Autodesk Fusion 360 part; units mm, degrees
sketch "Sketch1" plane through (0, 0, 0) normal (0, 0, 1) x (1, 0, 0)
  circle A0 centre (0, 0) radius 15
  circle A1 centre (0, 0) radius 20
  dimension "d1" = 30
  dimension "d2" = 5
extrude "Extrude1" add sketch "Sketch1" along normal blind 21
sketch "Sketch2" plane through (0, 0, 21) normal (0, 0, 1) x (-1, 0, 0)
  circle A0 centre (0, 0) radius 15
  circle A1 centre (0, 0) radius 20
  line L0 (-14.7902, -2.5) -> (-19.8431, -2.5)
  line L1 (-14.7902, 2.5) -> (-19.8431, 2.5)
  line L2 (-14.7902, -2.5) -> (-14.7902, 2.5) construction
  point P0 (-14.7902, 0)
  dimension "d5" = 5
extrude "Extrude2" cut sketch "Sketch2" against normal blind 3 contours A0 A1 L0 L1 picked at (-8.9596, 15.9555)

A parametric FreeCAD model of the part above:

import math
import FreeCAD as App
import Part
import Sketcher
from FreeCAD import Vector

doc = App.newDocument("Part")
body = doc.addObject("PartDesign::Body", "Body")

# Sketch on XY plane
sketch1 = body.newObject("Sketcher::SketchObject", "Sketch")
sketch1.AttachmentSupport = (doc.getObject("XY_Plane"), [""])
sketch1.MapMode = "FlatFace"
sketch1.addGeometry([
    Part.Circle(Vector(0, 0, 0), Vector(0, 0, 1), 20),
    Part.Circle(Vector(0, 0, 0), Vector(0, 0, 1), 15),
], False)
sketch1.addConstraint([
    Sketcher.Constraint("Coincident", 0, 3, -1, 1),
    Sketcher.Constraint("Coincident", 1, 3, -1, 1),
    Sketcher.Constraint("Diameter", 1, 30.0),
    Sketcher.Constraint("Diameter", 0, 40.0),
])
pad1 = body.newObject("PartDesign::Pad", "Pad")
pad1.Profile = sketch1
pad1.Length = 21

# Sketch on XY plane
sketch2 = body.newObject("Sketcher::SketchObject", "Sketch001")
sketch2.AttachmentSupport = (doc.getObject("XY_Plane"), [""])
sketch2.MapMode = "FlatFace"
sketch2.AttachmentOffset = App.Placement(Vector(0, 0, 21), App.Rotation())
sketch2.addGeometry([
    Part.ArcOfCircle(Part.Circle(Vector(0, 0, 0), Vector(0, 0, 1), 15), math.radians(9.594068), math.radians(350.405932)),
    Part.LineSegment(Vector(14.7902, 2.5, 0), Vector(19.8431, 2.5, 0)),
    Part.ArcOfCircle(Part.Circle(Vector(0, 0, 0), Vector(0, 0, 1), 20), math.radians(7.180768), math.radians(352.819232)),
    Part.LineSegment(Vector(19.8431, -2.5, 0), Vector(14.7902, -2.5, 0)),
], False)
sketch2.addConstraint([
    Sketcher.Constraint("Coincident", 0, 1, 1, 1),
    Sketcher.Constraint("Coincident", 1, 2, 2, 1),
    Sketcher.Constraint("Coincident", 2, 2, 3, 1),
    Sketcher.Constraint("Coincident", 3, 2, 0, 2),
    Sketcher.Constraint("Horizontal", 1),
    Sketcher.Constraint("Horizontal", 3),
    Sketcher.Constraint("Coincident", 0, 3, -1, 1),
    Sketcher.Constraint("Coincident", 2, 3, -1, 1),
    Sketcher.Constraint("Vertical", 1, 2, 2, 2),
    Sketcher.Constraint("Radius", 0, 15.0),
    Sketcher.Constraint("Radius", 2, 20.0),
    Sketcher.Constraint("DistanceY", 2, 2, 1, 2, 5.0),
])
pocket1 = body.newObject("PartDesign::Pocket", "Pocket")
pocket1.Profile = sketch2
pocket1.Length = 3

doc.recompute()
